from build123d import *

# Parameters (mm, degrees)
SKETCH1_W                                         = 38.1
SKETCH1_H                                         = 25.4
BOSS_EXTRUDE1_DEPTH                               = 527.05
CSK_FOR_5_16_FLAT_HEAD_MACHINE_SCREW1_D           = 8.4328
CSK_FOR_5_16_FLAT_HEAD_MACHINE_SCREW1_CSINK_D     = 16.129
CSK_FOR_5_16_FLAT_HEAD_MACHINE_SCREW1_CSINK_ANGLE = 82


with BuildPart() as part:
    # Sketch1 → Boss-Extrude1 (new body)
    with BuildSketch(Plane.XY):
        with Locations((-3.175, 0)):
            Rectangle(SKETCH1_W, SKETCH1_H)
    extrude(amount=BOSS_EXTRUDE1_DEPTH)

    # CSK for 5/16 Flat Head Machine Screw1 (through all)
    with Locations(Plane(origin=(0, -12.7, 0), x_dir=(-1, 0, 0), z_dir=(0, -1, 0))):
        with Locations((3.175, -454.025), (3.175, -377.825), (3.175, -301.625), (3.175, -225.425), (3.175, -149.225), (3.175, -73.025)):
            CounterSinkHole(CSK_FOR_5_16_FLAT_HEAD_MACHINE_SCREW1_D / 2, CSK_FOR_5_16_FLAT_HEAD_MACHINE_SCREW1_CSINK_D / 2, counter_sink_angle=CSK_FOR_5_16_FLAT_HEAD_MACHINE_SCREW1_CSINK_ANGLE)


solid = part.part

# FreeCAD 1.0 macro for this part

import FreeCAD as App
import Part
import Sketcher
Q = App.Units.Quantity


def add_polygon(sketch, points):
    """Adds a closed chain of lines whose ends are joined by coincident constraints."""
    first, n = sketch.GeometryCount, len(points)
    for a, b in zip(points, points[1:] + points[:1]):
        sketch.addGeometry(Part.LineSegment(App.Vector(*a, 0), App.Vector(*b, 0)), False)
    for i in range(n):
        sketch.addConstraint(Sketcher.Constraint("Coincident", first + i, 2, first + (i + 1) % n, 1))

doc = App.newDocument("Part")
body = doc.addObject("PartDesign::Body", "Body")

# Sketch on XY plane
sketch1 = body.newObject("Sketcher::SketchObject", "Sketch")
sketch1.AttachmentSupport = (doc.getObject("XY_Plane"), [""])
sketch1.MapMode = "FlatFace"
add_polygon(sketch1, [(-22, 13), (-22, -13), (16, -13), (16, 13)])  # lines 0-3
sketch1.addConstraint([
    Sketcher.Constraint("Vertical", 0),
    Sketcher.Constraint("Horizontal", 1),
    Sketcher.Constraint("Vertical", 2),
    Sketcher.Constraint("Horizontal", 3),
    Sketcher.Constraint("DistanceY", 0, 2, 0, 1, Q("1 in")),
    Sketcher.Constraint("DistanceX", 1, 1, 1, 2, Q("1.5 in")),
    Sketcher.Constraint("DistanceY", 0, 2, -1, 1, Q("0.5 in")),
    Sketcher.Constraint("DistanceX", 0, 2, -1, 1, Q("0.875 in")),
])
pad1 = body.newObject("PartDesign::Pad", "Pad")
pad1.Profile = sketch1
pad1.Length = Q("20.75 in")

# Sketch on XZ plane
sketch2 = body.newObject("Sketcher::SketchObject", "Sketch001")
sketch2.AttachmentSupport = (doc.getObject("XZ_Plane"), [""])
sketch2.MapMode = "FlatFace"
sketch2.AttachmentOffset = App.Placement(App.Vector(0, 0, 0.5 * 25.4), App.Rotation())
sketch2.addGeometry([
    Part.Circle(App.Vector(-3.2, 454, 0), App.Vector(0, 0, 1), 4.2),  # 0
    Part.Circle(App.Vector(-3.2, 377.8, 0), App.Vector(0, 0, 1), 4.2),  # 1
    Part.Circle(App.Vector(-3.2, 301.6, 0), App.Vector(0, 0, 1), 4.2),  # 2
    Part.Circle(App.Vector(-3.2, 225.4, 0), App.Vector(0, 0, 1), 4.2),  # 3
    Part.Circle(App.Vector(-3.2, 149.2, 0), App.Vector(0, 0, 1), 4.2),  # 4
    Part.Circle(App.Vector(-3.2, 73, 0), App.Vector(0, 0, 1), 4.2),  # 5
], False)
sketch2.addConstraint([
    Sketcher.Constraint("Equal", 0, 1),
    Sketcher.Constraint("Equal", 1, 2),
    Sketcher.Constraint("Equal", 2, 3),
    Sketcher.Constraint("Equal", 3, 4),
    Sketcher.Constraint("Equal", 4, 5),
    Sketcher.Constraint("Vertical", 0, 3, 1, 3),
    Sketcher.Constraint("Vertical", 1, 3, 2, 3),
    Sketcher.Constraint("Vertical", 2, 3, 3, 3),
    Sketcher.Constraint("Vertical", 3, 3, 4, 3),
    Sketcher.Constraint("Vertical", 4, 3, 5, 3),
    Sketcher.Constraint("Diameter", 0, Q("0.332 in")),
    Sketcher.Constraint("DistanceY", 1, 3, 0, 3, Q("3 in")),
    Sketcher.Constraint("DistanceY", 2, 3, 1, 3, Q("3 in")),
    Sketcher.Constraint("DistanceY", 3, 3, 2, 3, Q("3 in")),
    Sketcher.Constraint("DistanceY", 4, 3, 3, 3, Q("3 in")),
    Sketcher.Constraint("DistanceY", 5, 3, 4, 3, Q("3 in")),
    Sketcher.Constraint("DistanceX", 0, 3, -1, 1, Q("0.125 in")),
    Sketcher.Constraint("DistanceY", -1, 1, 0, 3, Q("17.875 in")),
])
doc.recompute()
hole = body.newObject("PartDesign::Hole", "Hole")
hole.Profile = sketch2
hole.ThreadType = "None"
hole.Diameter = Q("0.332 in")
hole.DepthType = "ThroughAll"
hole.HoleCutType = "Countersink"
hole.HoleCutDiameter = Q("0.635 in")
hole.HoleCutCountersinkAngle = 82

doc.recompute()
